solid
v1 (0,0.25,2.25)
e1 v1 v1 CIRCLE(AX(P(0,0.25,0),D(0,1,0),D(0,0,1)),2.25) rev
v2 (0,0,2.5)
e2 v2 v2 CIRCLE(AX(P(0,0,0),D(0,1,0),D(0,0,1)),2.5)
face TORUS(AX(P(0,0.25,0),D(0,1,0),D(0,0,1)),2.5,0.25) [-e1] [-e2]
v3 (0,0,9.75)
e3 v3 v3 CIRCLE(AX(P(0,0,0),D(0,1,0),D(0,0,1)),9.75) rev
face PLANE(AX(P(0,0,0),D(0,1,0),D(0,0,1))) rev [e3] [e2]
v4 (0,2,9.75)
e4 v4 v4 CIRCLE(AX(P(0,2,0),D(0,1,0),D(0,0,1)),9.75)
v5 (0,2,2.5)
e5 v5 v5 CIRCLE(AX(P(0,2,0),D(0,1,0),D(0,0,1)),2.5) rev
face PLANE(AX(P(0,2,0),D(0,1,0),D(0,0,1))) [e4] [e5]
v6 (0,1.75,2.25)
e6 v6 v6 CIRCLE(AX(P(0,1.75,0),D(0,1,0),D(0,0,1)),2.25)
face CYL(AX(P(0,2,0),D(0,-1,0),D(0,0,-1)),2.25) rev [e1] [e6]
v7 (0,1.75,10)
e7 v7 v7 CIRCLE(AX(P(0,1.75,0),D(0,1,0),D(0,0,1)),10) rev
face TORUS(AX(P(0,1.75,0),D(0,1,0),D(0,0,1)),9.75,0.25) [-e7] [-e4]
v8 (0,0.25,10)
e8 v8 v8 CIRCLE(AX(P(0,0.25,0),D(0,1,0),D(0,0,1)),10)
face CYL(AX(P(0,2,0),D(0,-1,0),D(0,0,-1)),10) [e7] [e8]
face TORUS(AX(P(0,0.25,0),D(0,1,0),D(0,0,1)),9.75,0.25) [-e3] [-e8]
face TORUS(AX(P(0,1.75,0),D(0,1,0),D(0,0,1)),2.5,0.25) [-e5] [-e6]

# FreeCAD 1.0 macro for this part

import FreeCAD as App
import Part
import Sketcher


def edges_at(feature, points):
    """Names of the edges that pass closest to the given points."""
    edges = feature.Shape.Edges
    near = lambda p: min(range(len(edges)), key=lambda i: edges[i].distToShape(Part.Vertex(*p))[0])
    return sorted({f"Edge{near(p) + 1}" for p in points})

doc = App.newDocument("Part")
body = doc.addObject("PartDesign::Body", "Body")

# Sketch on XZ plane
sketch1 = body.newObject("Sketcher::SketchObject", "Sketch")
sketch1.AttachmentSupport = (doc.getObject("XZ_Plane"), [""])
sketch1.MapMode = "FlatFace"
sketch1.addGeometry(Part.Circle(App.Vector(0, 0, 0), App.Vector(0, 0, 1), 10), False)
sketch1.addGeometry(Part.Circle(App.Vector(0, 0, 0), App.Vector(0, 0, 1), 2.25), False)
sketch1.addConstraint(Sketcher.Constraint("Coincident", 0, 3, -1, 1))
sketch1.addConstraint(Sketcher.Constraint("Coincident", 1, 3, -1, 1))
sketch1.addConstraint(Sketcher.Constraint("Diameter", 0, 20.0))
sketch1.addConstraint(Sketcher.Constraint("Diameter", 1, 4.5))
pad1 = body.newObject("PartDesign::Pad", "Pad")
pad1.Profile = sketch1
pad1.Length = 2
pad1.Reversed = True
doc.recompute()

fillet = body.newObject("PartDesign::Fillet", "Fillet")
fillet.Base = (pad1, edges_at(pad1, [
    (0, 0, -10),
    (0, 2, -10),
    (0, 0, -2.25),
    (0, 2, -2.25),
]))
fillet.Radius = 0.25

doc.recompute()
